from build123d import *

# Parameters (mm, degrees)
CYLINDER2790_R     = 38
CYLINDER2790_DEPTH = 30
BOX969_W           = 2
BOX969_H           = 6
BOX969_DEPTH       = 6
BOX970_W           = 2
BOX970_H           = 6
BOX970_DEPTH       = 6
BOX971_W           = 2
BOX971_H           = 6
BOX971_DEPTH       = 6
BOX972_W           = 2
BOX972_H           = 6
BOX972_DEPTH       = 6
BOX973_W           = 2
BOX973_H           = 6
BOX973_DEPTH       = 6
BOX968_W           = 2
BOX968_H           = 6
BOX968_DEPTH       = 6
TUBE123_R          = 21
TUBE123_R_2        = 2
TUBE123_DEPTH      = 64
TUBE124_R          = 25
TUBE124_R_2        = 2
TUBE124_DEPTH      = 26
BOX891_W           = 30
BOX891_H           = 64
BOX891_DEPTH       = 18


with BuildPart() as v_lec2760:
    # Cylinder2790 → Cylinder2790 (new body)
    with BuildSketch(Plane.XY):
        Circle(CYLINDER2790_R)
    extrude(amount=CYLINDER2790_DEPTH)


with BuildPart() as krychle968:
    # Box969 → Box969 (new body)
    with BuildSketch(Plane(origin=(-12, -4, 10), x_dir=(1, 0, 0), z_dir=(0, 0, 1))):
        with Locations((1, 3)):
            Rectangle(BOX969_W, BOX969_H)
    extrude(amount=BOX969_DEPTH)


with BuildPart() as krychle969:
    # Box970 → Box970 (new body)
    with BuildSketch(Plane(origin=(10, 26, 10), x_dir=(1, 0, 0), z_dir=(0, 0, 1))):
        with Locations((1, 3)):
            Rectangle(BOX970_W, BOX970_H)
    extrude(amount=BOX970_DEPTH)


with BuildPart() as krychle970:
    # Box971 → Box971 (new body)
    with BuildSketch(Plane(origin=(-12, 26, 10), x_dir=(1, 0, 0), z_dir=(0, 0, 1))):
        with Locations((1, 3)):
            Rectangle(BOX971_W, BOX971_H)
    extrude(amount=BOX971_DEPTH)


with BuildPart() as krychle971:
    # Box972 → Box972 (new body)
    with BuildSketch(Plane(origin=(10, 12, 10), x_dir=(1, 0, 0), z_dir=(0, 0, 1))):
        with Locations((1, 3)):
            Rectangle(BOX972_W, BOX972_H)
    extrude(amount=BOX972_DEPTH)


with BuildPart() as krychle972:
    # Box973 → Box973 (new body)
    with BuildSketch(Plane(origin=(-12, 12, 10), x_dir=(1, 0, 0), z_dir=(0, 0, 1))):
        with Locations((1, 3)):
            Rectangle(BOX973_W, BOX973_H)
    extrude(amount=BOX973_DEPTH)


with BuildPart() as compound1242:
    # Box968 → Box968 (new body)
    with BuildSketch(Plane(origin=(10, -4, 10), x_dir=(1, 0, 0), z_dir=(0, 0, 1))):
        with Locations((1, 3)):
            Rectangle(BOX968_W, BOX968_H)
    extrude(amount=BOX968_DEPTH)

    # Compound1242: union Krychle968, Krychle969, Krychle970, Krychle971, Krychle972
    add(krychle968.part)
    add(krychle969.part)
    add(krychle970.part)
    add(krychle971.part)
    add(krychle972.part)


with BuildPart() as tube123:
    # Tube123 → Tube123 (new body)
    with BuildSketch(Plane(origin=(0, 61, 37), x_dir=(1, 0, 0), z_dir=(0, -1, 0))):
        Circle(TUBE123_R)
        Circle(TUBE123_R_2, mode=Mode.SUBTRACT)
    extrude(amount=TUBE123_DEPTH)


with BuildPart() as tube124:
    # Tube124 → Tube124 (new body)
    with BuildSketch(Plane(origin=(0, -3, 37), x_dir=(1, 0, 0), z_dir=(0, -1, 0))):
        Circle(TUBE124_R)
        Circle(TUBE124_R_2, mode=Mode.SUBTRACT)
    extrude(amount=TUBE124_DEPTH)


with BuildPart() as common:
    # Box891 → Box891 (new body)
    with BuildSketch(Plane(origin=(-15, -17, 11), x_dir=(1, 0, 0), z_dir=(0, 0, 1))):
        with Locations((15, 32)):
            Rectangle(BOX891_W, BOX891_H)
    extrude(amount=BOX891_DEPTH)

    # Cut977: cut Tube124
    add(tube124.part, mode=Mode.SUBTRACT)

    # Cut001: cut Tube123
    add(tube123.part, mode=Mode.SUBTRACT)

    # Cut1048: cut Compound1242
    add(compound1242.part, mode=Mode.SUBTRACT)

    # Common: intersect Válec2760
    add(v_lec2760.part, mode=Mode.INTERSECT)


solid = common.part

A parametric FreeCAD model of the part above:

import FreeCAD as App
import Part
import Sketcher
from FreeCAD import Vector
Q = App.Units.Quantity


def add_polygon(sketch, points):
    """Adds a closed chain of lines whose ends are joined by coincident constraints."""
    first, n = sketch.GeometryCount, len(points)
    for a, b in zip(points, points[1:] + points[:1]):
        sketch.addGeometry(Part.LineSegment(App.Vector(*a, 0), App.Vector(*b, 0)), False)
    for i in range(n):
        sketch.addConstraint(Sketcher.Constraint("Coincident", first + i, 2, first + (i + 1) % n, 1))

doc = App.newDocument("Part")
body = doc.addObject("PartDesign::Body", "Body")

# Sketch on XY plane
sketch1 = doc.addObject("Sketcher::SketchObject", "Sketch")
body.addObject(sketch1)
sketch1.AttachmentSupport = (doc.XY_Plane, [""])
sketch1.MapMode = "FlatFace"
sketch1.addGeometry(Part.Circle(Vector(0, 0, 0), Vector(0, 0, 1), 38), False)
sketch1.addConstraint([
    Sketcher.Constraint("Coincident", 0, 3, -1, 1),
    Sketcher.Constraint("Diameter", 0, Q("76 mm")),
])
pad1 = doc.addObject("PartDesign::Pad", "Pad")
body.addObject(pad1)
pad1.Profile = sketch1
pad1.Length = 30
body2 = doc.addObject("PartDesign::Body", "Body001")

# Sketch on XY plane
sketch2 = doc.addObject("Sketcher::SketchObject", "Sketch001")
body2.addObject(sketch2)
sketch2.AttachmentSupport = (doc.getObject("XY_Plane001"), [""])
sketch2.MapMode = "FlatFace"
sketch2.AttachmentOffset = App.Placement(Vector(0, 0, 10), App.Rotation())
add_polygon(sketch2, [(-12, 2), (-12, -4), (-10, -4), (-10, 2)])  # lines 0-3
sketch2.addConstraint([
    Sketcher.Constraint("Vertical", 0),
    Sketcher.Constraint("Horizontal", 1),
    Sketcher.Constraint("Vertical", 2),
    Sketcher.Constraint("Horizontal", 3),
    Sketcher.Constraint("DistanceX", 1, 1, 1, 2, Q("2 mm")),
    Sketcher.Constraint("DistanceY", 0, 2, 0, 1, Q("6 mm")),
    Sketcher.Constraint("DistanceX", 0, 2, -1, 1, Q("12 mm")),
    Sketcher.Constraint("DistanceY", 0, 2, -1, 1, Q("4 mm")),
])
pad2 = doc.addObject("PartDesign::Pad", "Pad001")
body2.addObject(pad2)
pad2.Profile = sketch2
pad2.Length = 6
body3 = doc.addObject("PartDesign::Body", "Body002")

# Sketch on XY plane
sketch3 = doc.addObject("Sketcher::SketchObject", "Sketch002")
body3.addObject(sketch3)
sketch3.AttachmentSupport = (doc.getObject("XY_Plane002"), [""])
sketch3.MapMode = "FlatFace"
sketch3.AttachmentOffset = App.Placement(Vector(0, 0, 10), App.Rotation())
add_polygon(sketch3, [(10, 32), (10, 26), (12, 26), (12, 32)])  # lines 0-3
sketch3.addConstraint([
    Sketcher.Constraint("Vertical", 0),
    Sketcher.Constraint("Horizontal", 1),
    Sketcher.Constraint("Vertical", 2),
    Sketcher.Constraint("Horizontal", 3),
    Sketcher.Constraint("DistanceX", 1, 1, 1, 2, Q("2 mm")),
    Sketcher.Constraint("DistanceY", 0, 2, 0, 1, Q("6 mm")),
    Sketcher.Constraint("DistanceX", -1, 1, 0, 2, Q("10 mm")),
    Sketcher.Constraint("DistanceY", -1, 1, 0, 2, Q("26 mm")),
])
pad3 = doc.addObject("PartDesign::Pad", "Pad002")
body3.addObject(pad3)
pad3.Profile = sketch3
pad3.Length = 6
body4 = doc.addObject("PartDesign::Body", "Body003")

# Sketch on XY plane
sketch4 = doc.addObject("Sketcher::SketchObject", "Sketch003")
body4.addObject(sketch4)
sketch4.AttachmentSupport = (doc.getObject("XY_Plane003"), [""])
sketch4.MapMode = "FlatFace"
sketch4.AttachmentOffset = App.Placement(Vector(0, 0, 10), App.Rotation())
add_polygon(sketch4, [(-12, 32), (-12, 26), (-10, 26), (-10, 32)])  # lines 0-3
sketch4.addConstraint([
    Sketcher.Constraint("Vertical", 0),
    Sketcher.Constraint("Horizontal", 1),
    Sketcher.Constraint("Vertical", 2),
    Sketcher.Constraint("Horizontal", 3),
    Sketcher.Constraint("DistanceX", 1, 1, 1, 2, Q("2 mm")),
    Sketcher.Constraint("DistanceY", 0, 2, 0, 1, Q("6 mm")),
    Sketcher.Constraint("DistanceX", 0, 2, -1, 1, Q("12 mm")),
    Sketcher.Constraint("DistanceY", -1, 1, 0, 2, Q("26 mm")),
])
pad4 = doc.addObject("PartDesign::Pad", "Pad003")
body4.addObject(pad4)
pad4.Profile = sketch4
pad4.Length = 6
body5 = doc.addObject("PartDesign::Body", "Body004")

# Sketch on XY plane
sketch5 = doc.addObject("Sketcher::SketchObject", "Sketch004")
body5.addObject(sketch5)
sketch5.AttachmentSupport = (doc.getObject("XY_Plane004"), [""])
sketch5.MapMode = "FlatFace"
sketch5.AttachmentOffset = App.Placement(Vector(0, 0, 10), App.Rotation())
add_polygon(sketch5, [(10, 18), (10, 12), (12, 12), (12, 18)])  # lines 0-3
sketch5.addConstraint([
    Sketcher.Constraint("Vertical", 0),
    Sketcher.Constraint("Horizontal", 1),
    Sketcher.Constraint("Vertical", 2),
    Sketcher.Constraint("Horizontal", 3),
    Sketcher.Constraint("DistanceX", 1, 1, 1, 2, Q("2 mm")),
    Sketcher.Constraint("DistanceY", 0, 2, 0, 1, Q("6 mm")),
    Sketcher.Constraint("DistanceX", -1, 1, 0, 2, Q("10 mm")),
    Sketcher.Constraint("DistanceY", -1, 1, 0, 2, Q("12 mm")),
])
pad5 = doc.addObject("PartDesign::Pad", "Pad004")
body5.addObject(pad5)
pad5.Profile = sketch5
pad5.Length = 6
body6 = doc.addObject("PartDesign::Body", "Body005")

# Sketch on XY plane
sketch6 = doc.addObject("Sketcher::SketchObject", "Sketch005")
body6.addObject(sketch6)
sketch6.AttachmentSupport = (doc.getObject("XY_Plane005"), [""])
sketch6.MapMode = "FlatFace"
sketch6.AttachmentOffset = App.Placement(Vector(0, 0, 10), App.Rotation())
add_polygon(sketch6, [(-12, 18), (-12, 12), (-10, 12), (-10, 18)])  # lines 0-3
sketch6.addConstraint([
    Sketcher.Constraint("Vertical", 0),
    Sketcher.Constraint("Horizontal", 1),
    Sketcher.Constraint("Vertical", 2),
    Sketcher.Constraint("Horizontal", 3),
    Sketcher.Constraint("DistanceX", 1, 1, 1, 2, Q("2 mm")),
    Sketcher.Constraint("DistanceY", 0, 2, 0, 1, Q("6 mm")),
    Sketcher.Constraint("DistanceX", 0, 2, -1, 1, Q("12 mm")),
    Sketcher.Constraint("DistanceY", -1, 1, 0, 2, Q("12 mm")),
])
pad6 = doc.addObject("PartDesign::Pad", "Pad005")
body6.addObject(pad6)
pad6.Profile = sketch6
pad6.Length = 6
body7 = doc.addObject("PartDesign::Body", "Body006")
body7.AllowCompound = True

# Sketch on XY plane
sketch7 = doc.addObject("Sketcher::SketchObject", "Sketch006")
body7.addObject(sketch7)
sketch7.AttachmentSupport = (doc.getObject("XY_Plane006"), [""])
sketch7.MapMode = "FlatFace"
sketch7.AttachmentOffset = App.Placement(Vector(0, 0, 10), App.Rotation())
add_polygon(sketch7, [(10, 2), (10, -4), (12, -4), (12, 2)])  # lines 0-3
sketch7.addConstraint([
    Sketcher.Constraint("Vertical", 0),
    Sketcher.Constraint("Horizontal", 1),
    Sketcher.Constraint("Vertical", 2),
    Sketcher.Constraint("Horizontal", 3),
    Sketcher.Constraint("DistanceX", 1, 1, 1, 2, Q("2 mm")),
    Sketcher.Constraint("DistanceY", 0, 2, 0, 1, Q("6 mm")),
    Sketcher.Constraint("DistanceX", -1, 1, 0, 2, Q("10 mm")),
    Sketcher.Constraint("DistanceY", 0, 2, -1, 1, Q("4 mm")),
])
pad7 = doc.addObject("PartDesign::Pad", "Pad006")
body7.addObject(pad7)
pad7.Profile = sketch7
pad7.Length = 6
doc.recompute()

boolean = doc.addObject("PartDesign::Boolean", "Boolean")
body7.addObject(boolean)
boolean.Type = "Fuse"
boolean.addObjects([body2])
doc.recompute()

boolean2 = doc.addObject("PartDesign::Boolean", "Boolean001")
body7.addObject(boolean2)
boolean2.Type = "Fuse"
boolean2.addObjects([body3])
doc.recompute()

boolean3 = doc.addObject("PartDesign::Boolean", "Boolean002")
body7.addObject(boolean3)
boolean3.Type = "Fuse"
boolean3.addObjects([body4])
doc.recompute()

boolean4 = doc.addObject("PartDesign::Boolean", "Boolean003")
body7.addObject(boolean4)
boolean4.Type = "Fuse"
boolean4.addObjects([body5])
doc.recompute()

boolean5 = doc.addObject("PartDesign::Boolean", "Boolean004")
body7.addObject(boolean5)
boolean5.Type = "Fuse"
boolean5.addObjects([body6])
body8 = doc.addObject("PartDesign::Body", "Body007")

# Sketch on XZ plane
sketch8 = doc.addObject("Sketcher::SketchObject", "Sketch007")
body8.addObject(sketch8)
sketch8.AttachmentSupport = (doc.getObject("XZ_Plane007"), [""])
sketch8.MapMode = "FlatFace"
sketch8.AttachmentOffset = App.Placement(Vector(0, 0, -61), App.Rotation())
sketch8.addGeometry([
    Part.Circle(Vector(0, 37, 0), Vector(0, 0, 1), 21),
    Part.Circle(Vector(0, 37, 0), Vector(0, 0, 1), 2),
], False)
sketch8.addConstraint([
    Sketcher.Constraint("Coincident", 1, 3, 0, 3),
    Sketcher.Constraint("PointOnObject", 0, 3, -2),
    Sketcher.Constraint("Diameter", 0, Q("42 mm")),
    Sketcher.Constraint("Diameter", 1, Q("4 mm")),
    Sketcher.Constraint("DistanceY", -1, 1, 0, 3, Q("37 mm")),
])
pad8 = doc.addObject("PartDesign::Pad", "Pad007")
body8.addObject(pad8)
pad8.Profile = sketch8
pad8.Length = 64
body9 = doc.addObject("PartDesign::Body", "Body008")

# Sketch on XZ plane
sketch9 = doc.addObject("Sketcher::SketchObject", "Sketch008")
body9.addObject(sketch9)
sketch9.AttachmentSupport = (doc.getObject("XZ_Plane008"), [""])
sketch9.MapMode = "FlatFace"
sketch9.AttachmentOffset = App.Placement(Vector(0, 0, 3), App.Rotation())
sketch9.addGeometry([
    Part.Circle(Vector(0, 37, 0), Vector(0, 0, 1), 25),
    Part.Circle(Vector(0, 37, 0), Vector(0, 0, 1), 2),
], False)
sketch9.addConstraint([
    Sketcher.Constraint("Coincident", 1, 3, 0, 3),
    Sketcher.Constraint("PointOnObject", 0, 3, -2),
    Sketcher.Constraint("Diameter", 0, Q("50 mm")),
    Sketcher.Constraint("Diameter", 1, Q("4 mm")),
    Sketcher.Constraint("DistanceY", -1, 1, 0, 3, Q("37 mm")),
])
pad9 = doc.addObject("PartDesign::Pad", "Pad008")
body9.addObject(pad9)
pad9.Profile = sketch9
pad9.Length = 26
body10 = doc.addObject("PartDesign::Body", "Body009")

# Sketch on XY plane
sketch10 = doc.addObject("Sketcher::SketchObject", "Sketch009")
body10.addObject(sketch10)
sketch10.AttachmentSupport = (doc.getObject("XY_Plane009"), [""])
sketch10.MapMode = "FlatFace"
sketch10.AttachmentOffset = App.Placement(Vector(0, 0, 11), App.Rotation())
add_polygon(sketch10, [(-15, 47), (-15, -17), (15, -17), (15, 47)])  # lines 0-3
sketch10.addConstraint([
    Sketcher.Constraint("Vertical", 0),
    Sketcher.Constraint("Horizontal", 1),
    Sketcher.Constraint("Vertical", 2),
    Sketcher.Constraint("Horizontal", 3),
    Sketcher.Constraint("DistanceX", 1, 1, 1, 2, Q("30 mm")),
    Sketcher.Constraint("DistanceY", 0, 2, 0, 1, Q("64 mm")),
    Sketcher.Constraint("DistanceX", 0, 2, -1, 1, Q("15 mm")),
    Sketcher.Constraint("DistanceY", 0, 2, -1, 1, Q("17 mm")),
])
pad10 = doc.addObject("PartDesign::Pad", "Pad009")
body10.addObject(pad10)
pad10.Profile = sketch10
pad10.Length = 18
doc.recompute()

boolean6 = doc.addObject("PartDesign::Boolean", "Boolean005")
body10.addObject(boolean6)
boolean6.Type = "Cut"
boolean6.addObjects([body9])
doc.recompute()

boolean7 = doc.addObject("PartDesign::Boolean", "Boolean006")
body10.addObject(boolean7)
boolean7.Type = "Cut"
boolean7.addObjects([body8])
doc.recompute()

boolean8 = doc.addObject("PartDesign::Boolean", "Boolean007")
body10.addObject(boolean8)
boolean8.Type = "Cut"
boolean8.addObjects([body7])
doc.recompute()

boolean9 = doc.addObject("PartDesign::Boolean", "Boolean008")
body10.addObject(boolean9)
boolean9.Type = "Common"
boolean9.addObjects([body])

doc.recompute()
